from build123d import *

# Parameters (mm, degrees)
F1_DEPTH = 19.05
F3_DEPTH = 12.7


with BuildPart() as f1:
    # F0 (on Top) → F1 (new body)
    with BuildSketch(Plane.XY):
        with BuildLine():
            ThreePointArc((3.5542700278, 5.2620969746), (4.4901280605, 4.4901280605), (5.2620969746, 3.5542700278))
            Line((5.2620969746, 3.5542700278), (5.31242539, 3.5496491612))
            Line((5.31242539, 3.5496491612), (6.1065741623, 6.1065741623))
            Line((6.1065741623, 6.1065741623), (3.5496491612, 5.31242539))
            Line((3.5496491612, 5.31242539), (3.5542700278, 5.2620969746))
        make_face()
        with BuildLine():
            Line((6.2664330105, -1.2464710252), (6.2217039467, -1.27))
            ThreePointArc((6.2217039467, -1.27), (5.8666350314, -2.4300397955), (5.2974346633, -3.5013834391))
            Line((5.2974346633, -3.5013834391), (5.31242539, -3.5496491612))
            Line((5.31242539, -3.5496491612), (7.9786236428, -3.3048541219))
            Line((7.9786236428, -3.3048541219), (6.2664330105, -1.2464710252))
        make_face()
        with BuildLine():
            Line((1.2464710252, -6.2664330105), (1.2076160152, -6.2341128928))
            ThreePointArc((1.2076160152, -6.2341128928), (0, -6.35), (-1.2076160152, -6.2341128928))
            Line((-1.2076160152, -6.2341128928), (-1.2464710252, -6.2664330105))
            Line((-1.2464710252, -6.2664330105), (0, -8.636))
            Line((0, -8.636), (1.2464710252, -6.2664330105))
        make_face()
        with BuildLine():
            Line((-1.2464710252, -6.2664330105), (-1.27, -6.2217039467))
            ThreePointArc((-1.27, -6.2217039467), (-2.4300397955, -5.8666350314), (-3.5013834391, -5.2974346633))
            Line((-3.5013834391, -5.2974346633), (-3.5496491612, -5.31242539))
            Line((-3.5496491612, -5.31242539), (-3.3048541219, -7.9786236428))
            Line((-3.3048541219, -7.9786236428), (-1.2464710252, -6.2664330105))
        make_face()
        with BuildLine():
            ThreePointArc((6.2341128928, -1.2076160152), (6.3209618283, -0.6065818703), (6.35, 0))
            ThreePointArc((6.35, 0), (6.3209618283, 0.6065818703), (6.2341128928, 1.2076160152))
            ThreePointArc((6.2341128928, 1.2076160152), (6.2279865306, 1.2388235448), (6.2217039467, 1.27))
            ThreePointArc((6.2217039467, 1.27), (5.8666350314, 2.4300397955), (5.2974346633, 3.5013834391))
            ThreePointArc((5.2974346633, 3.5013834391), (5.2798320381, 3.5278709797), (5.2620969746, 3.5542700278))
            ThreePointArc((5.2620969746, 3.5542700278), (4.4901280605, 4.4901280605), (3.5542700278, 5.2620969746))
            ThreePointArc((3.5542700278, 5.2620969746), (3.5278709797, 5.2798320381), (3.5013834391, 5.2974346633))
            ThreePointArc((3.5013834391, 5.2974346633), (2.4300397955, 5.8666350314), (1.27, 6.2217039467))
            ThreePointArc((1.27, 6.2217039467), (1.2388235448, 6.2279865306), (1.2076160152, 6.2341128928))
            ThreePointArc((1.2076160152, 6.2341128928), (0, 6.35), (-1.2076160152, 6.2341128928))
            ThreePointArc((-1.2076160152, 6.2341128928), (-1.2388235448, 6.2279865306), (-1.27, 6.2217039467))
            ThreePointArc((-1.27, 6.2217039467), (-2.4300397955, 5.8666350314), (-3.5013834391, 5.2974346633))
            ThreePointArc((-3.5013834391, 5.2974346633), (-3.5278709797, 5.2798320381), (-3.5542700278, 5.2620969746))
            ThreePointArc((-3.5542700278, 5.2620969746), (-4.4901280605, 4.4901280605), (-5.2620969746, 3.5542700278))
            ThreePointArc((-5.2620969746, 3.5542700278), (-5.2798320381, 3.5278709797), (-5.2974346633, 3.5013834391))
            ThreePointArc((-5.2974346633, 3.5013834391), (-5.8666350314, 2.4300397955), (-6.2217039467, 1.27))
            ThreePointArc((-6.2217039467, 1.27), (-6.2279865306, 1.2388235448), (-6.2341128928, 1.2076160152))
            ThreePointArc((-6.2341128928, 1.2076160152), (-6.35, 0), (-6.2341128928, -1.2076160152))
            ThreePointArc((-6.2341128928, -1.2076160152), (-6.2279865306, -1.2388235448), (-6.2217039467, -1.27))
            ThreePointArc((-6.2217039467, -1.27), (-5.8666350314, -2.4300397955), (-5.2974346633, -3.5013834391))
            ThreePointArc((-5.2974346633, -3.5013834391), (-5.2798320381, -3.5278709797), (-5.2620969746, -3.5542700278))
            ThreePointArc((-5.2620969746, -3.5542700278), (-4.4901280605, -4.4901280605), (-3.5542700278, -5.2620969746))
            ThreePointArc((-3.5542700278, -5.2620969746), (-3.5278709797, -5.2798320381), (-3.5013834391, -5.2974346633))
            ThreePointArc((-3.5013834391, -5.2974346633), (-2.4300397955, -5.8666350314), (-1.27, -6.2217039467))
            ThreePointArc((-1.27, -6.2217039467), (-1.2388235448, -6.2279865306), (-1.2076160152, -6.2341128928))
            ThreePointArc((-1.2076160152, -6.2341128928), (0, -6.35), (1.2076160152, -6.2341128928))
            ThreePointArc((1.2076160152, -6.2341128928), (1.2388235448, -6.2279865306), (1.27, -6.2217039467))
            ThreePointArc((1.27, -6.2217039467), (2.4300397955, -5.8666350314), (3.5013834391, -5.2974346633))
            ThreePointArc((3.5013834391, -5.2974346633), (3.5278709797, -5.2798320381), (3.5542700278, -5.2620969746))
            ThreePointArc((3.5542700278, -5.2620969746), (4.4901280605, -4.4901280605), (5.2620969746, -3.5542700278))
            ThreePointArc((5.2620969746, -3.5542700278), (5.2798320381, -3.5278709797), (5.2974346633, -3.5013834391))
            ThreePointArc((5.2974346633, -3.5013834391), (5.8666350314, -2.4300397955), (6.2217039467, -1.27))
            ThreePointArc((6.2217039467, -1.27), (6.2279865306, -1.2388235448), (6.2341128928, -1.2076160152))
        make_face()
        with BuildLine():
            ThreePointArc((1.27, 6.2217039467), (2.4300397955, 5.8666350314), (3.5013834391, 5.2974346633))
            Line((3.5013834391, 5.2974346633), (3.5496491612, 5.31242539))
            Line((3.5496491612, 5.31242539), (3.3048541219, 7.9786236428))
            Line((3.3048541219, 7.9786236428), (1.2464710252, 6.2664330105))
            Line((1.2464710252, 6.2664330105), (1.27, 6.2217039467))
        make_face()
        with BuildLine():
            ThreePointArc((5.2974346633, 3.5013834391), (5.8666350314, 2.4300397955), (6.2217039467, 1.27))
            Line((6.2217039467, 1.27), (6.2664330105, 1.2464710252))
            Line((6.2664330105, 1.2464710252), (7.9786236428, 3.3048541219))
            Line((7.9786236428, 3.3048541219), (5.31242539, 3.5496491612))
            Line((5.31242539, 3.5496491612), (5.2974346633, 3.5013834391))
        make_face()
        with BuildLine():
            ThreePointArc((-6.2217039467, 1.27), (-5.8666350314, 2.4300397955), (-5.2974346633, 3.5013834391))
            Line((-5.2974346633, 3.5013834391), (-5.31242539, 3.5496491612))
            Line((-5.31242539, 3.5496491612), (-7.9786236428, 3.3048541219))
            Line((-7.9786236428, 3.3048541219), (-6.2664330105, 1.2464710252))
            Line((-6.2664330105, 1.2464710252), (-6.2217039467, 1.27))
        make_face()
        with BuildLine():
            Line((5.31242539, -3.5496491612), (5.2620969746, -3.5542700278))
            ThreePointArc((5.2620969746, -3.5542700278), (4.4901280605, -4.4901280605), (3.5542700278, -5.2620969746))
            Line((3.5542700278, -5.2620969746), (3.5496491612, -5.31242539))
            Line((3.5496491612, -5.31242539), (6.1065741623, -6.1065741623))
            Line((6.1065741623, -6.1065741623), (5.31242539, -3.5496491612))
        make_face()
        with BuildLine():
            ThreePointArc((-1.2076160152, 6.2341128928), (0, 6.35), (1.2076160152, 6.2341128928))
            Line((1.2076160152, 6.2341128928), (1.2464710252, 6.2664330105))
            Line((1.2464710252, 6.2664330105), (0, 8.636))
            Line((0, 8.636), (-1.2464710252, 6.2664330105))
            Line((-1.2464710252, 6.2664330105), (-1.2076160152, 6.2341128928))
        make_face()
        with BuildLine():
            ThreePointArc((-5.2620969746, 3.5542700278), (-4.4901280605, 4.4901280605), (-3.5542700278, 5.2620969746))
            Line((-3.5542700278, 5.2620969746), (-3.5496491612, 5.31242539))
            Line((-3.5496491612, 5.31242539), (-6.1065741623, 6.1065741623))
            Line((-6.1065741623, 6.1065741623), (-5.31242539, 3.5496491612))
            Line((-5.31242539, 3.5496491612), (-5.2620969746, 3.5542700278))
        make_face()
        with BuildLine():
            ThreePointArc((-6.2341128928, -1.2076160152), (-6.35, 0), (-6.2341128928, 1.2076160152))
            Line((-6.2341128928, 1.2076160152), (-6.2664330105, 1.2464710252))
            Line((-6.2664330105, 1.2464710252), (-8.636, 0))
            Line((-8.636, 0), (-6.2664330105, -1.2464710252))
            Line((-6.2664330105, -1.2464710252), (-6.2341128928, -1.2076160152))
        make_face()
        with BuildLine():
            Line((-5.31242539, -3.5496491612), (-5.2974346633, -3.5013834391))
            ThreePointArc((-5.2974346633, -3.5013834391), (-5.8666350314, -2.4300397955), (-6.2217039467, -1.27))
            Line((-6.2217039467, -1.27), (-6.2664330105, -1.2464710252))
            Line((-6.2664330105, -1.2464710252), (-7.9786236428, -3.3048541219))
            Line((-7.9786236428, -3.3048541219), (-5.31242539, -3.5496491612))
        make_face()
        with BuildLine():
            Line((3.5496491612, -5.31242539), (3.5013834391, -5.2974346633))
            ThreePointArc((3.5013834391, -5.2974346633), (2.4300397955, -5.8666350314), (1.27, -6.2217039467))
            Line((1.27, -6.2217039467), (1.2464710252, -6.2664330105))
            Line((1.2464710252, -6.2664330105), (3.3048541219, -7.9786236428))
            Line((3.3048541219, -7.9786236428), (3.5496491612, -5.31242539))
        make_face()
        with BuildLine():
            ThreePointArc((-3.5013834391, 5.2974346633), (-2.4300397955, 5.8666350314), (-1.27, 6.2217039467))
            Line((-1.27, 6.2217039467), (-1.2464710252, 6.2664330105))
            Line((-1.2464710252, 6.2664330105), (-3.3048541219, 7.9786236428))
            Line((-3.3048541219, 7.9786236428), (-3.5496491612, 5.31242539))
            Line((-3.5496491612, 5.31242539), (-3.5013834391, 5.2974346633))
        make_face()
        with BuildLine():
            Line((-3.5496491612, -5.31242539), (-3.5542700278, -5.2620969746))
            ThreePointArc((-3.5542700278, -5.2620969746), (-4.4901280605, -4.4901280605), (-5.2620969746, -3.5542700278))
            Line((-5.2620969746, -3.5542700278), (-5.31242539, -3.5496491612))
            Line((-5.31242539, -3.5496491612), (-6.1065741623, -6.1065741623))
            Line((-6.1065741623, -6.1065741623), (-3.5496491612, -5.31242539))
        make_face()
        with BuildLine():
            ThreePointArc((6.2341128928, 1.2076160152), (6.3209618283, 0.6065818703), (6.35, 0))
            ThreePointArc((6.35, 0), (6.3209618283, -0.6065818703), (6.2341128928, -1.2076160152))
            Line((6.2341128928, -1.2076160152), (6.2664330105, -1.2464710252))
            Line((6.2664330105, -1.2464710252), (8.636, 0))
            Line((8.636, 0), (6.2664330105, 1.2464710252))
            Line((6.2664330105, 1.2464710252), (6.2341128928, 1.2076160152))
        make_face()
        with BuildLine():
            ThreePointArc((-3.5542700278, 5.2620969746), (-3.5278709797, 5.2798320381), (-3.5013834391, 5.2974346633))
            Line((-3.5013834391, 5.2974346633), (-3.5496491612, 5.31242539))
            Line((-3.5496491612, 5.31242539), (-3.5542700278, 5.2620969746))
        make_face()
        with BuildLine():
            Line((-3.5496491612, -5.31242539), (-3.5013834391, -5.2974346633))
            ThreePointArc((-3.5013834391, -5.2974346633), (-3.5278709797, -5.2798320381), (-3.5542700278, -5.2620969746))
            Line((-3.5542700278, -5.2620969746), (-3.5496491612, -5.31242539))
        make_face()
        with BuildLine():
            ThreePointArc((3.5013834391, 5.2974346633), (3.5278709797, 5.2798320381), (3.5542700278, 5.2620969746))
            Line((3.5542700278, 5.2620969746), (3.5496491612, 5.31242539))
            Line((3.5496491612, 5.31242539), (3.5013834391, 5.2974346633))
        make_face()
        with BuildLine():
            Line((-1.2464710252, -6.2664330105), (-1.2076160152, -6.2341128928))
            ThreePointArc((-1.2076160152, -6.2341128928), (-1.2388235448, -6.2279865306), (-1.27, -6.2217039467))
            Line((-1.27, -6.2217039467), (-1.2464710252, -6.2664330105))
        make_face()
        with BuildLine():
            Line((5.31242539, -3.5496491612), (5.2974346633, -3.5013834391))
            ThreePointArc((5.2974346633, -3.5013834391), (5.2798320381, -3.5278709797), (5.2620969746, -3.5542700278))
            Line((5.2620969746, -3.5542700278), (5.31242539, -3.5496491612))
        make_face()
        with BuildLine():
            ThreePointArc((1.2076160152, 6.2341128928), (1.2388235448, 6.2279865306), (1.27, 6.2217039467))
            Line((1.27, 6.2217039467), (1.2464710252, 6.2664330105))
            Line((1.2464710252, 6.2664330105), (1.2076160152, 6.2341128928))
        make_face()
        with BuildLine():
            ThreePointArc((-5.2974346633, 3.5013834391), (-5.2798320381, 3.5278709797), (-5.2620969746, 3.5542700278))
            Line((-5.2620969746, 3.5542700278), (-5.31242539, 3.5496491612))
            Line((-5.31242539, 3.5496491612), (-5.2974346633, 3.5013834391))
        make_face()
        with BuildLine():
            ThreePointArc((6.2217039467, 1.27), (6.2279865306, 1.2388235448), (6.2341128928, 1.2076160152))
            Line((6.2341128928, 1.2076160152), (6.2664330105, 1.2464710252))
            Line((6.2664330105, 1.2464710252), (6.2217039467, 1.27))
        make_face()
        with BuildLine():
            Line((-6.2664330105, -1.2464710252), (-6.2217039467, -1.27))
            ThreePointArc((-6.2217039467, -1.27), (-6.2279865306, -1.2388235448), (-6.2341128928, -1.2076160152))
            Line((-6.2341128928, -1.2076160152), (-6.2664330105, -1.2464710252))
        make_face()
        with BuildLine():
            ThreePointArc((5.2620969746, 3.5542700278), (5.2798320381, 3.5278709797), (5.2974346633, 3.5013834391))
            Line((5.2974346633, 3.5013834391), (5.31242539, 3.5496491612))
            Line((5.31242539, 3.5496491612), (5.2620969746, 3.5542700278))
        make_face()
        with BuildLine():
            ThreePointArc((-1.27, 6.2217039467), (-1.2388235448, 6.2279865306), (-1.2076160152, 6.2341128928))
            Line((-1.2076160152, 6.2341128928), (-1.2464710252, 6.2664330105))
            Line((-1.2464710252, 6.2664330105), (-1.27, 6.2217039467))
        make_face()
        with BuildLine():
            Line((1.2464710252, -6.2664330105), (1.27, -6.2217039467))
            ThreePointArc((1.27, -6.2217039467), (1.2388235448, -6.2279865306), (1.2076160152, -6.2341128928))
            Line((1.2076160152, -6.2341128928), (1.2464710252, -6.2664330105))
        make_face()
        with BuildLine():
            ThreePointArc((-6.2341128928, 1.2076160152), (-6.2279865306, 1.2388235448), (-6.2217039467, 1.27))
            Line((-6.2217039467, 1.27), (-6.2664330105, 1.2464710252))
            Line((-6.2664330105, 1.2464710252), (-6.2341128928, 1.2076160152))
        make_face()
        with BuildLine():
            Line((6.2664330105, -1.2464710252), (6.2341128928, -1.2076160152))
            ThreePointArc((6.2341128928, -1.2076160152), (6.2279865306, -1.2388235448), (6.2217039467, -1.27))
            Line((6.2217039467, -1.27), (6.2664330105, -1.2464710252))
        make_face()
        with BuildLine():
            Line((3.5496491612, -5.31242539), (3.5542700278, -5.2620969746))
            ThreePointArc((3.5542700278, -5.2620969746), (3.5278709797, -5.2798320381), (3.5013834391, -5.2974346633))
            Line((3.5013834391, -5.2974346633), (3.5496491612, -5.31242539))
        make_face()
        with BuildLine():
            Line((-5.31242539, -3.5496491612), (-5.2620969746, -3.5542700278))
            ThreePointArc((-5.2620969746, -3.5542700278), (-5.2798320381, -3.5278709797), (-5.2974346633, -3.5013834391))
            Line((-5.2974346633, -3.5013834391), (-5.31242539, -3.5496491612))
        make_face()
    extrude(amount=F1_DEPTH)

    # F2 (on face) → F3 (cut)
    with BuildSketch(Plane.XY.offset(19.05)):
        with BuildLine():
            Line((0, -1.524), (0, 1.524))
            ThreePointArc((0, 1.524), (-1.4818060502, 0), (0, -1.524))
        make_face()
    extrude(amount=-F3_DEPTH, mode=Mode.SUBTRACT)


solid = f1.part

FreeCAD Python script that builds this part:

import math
import FreeCAD as App
import Part
import Sketcher

V = App.Vector
Q = App.Units.Quantity

doc = App.newDocument("Part")
body = doc.addObject("PartDesign::Body", "Body")

sketch1 = doc.addObject("Sketcher::SketchObject", "Sketch")
body.addObject(sketch1)
sketch1.AttachmentSupport = (doc.XY_Plane, [""])
sketch1.MapMode = "FlatFace"
sketch1.addGeometry([
    Part.LineSegment(V(-8, -3.3, 0), V(-5.3, -3.5, 0)),
    Part.LineSegment(V(-5.3, -3.5, 0), V(-6.1, -6.1, 0)),
    Part.LineSegment(V(-6.1, -6.1, 0), V(-3.5, -5.3, 0)),
    Part.LineSegment(V(-3.5, -5.3, 0), V(-3.3, -8, 0)),
    Part.LineSegment(V(-3.3, -8, 0), V(-1.2, -6.3, 0)),
    Part.LineSegment(V(-1.2, -6.3, 0), V(0, -8.6, 0)),
    Part.LineSegment(V(0, -8.6, 0), V(1.2, -6.3, 0)),
    Part.LineSegment(V(1.2, -6.3, 0), V(3.3, -8, 0)),
    Part.LineSegment(V(3.3, -8, 0), V(3.5, -5.3, 0)),
    Part.LineSegment(V(3.5, -5.3, 0), V(6.1, -6.1, 0)),
    Part.LineSegment(V(6.1, -6.1, 0), V(5.3, -3.5, 0)),
    Part.LineSegment(V(5.3, -3.5, 0), V(8, -3.3, 0)),
    Part.LineSegment(V(8, -3.3, 0), V(6.3, -1.2, 0)),
    Part.LineSegment(V(6.3, -1.2, 0), V(8.6, 0, 0)),
    Part.LineSegment(V(8.6, 0, 0), V(6.3, 1.2, 0)),
    Part.LineSegment(V(6.3, 1.2, 0), V(8, 3.3, 0)),
    Part.LineSegment(V(8, 3.3, 0), V(5.3, 3.5, 0)),
    Part.LineSegment(V(5.3, 3.5, 0), V(6.1, 6.1, 0)),
    Part.LineSegment(V(6.1, 6.1, 0), V(3.5, 5.3, 0)),
    Part.LineSegment(V(3.5, 5.3, 0), V(3.3, 8, 0)),
    Part.LineSegment(V(3.3, 8, 0), V(1.2, 6.3, 0)),
    Part.LineSegment(V(1.2, 6.3, 0), V(0, 8.6, 0)),
    Part.LineSegment(V(0, 8.6, 0), V(-1.2, 6.3, 0)),
    Part.LineSegment(V(-1.2, 6.3, 0), V(-3.3, 8, 0)),
    Part.LineSegment(V(-3.3, 8, 0), V(-3.5, 5.3, 0)),
    Part.LineSegment(V(-3.5, 5.3, 0), V(-6.1, 6.1, 0)),
    Part.LineSegment(V(-6.1, 6.1, 0), V(-5.3, 3.5, 0)),
    Part.LineSegment(V(-5.3, 3.5, 0), V(-8, 3.3, 0)),
    Part.LineSegment(V(-8, 3.3, 0), V(-6.3, 1.2, 0)),
    Part.LineSegment(V(-6.3, 1.2, 0), V(-8.6, 0, 0)),
    Part.LineSegment(V(-8.6, 0, 0), V(-6.3, -1.2, 0)),
    Part.LineSegment(V(-6.3, -1.2, 0), V(-8, -3.3, 0)),
], False)
sketch1.addConstraint([
    Sketcher.Constraint("Coincident", 0, 2, 1, 1),
    Sketcher.Constraint("Coincident", 1, 2, 2, 1),
    Sketcher.Constraint("Coincident", 2, 2, 3, 1),
    Sketcher.Constraint("Coincident", 3, 2, 4, 1),
    Sketcher.Constraint("Coincident", 4, 2, 5, 1),
    Sketcher.Constraint("Coincident", 5, 2, 6, 1),
    Sketcher.Constraint("Coincident", 6, 2, 7, 1),
    Sketcher.Constraint("Coincident", 7, 2, 8, 1),
    Sketcher.Constraint("Coincident", 8, 2, 9, 1),
    Sketcher.Constraint("Coincident", 9, 2, 10, 1),
    Sketcher.Constraint("Coincident", 10, 2, 11, 1),
    Sketcher.Constraint("Coincident", 11, 2, 12, 1),
    Sketcher.Constraint("Coincident", 12, 2, 13, 1),
    Sketcher.Constraint("Coincident", 13, 2, 14, 1),
    Sketcher.Constraint("Coincident", 14, 2, 15, 1),
    Sketcher.Constraint("Coincident", 15, 2, 16, 1),
    Sketcher.Constraint("Coincident", 16, 2, 17, 1),
    Sketcher.Constraint("Coincident", 17, 2, 18, 1),
    Sketcher.Constraint("Coincident", 18, 2, 19, 1),
    Sketcher.Constraint("Coincident", 19, 2, 20, 1),
    Sketcher.Constraint("Coincident", 20, 2, 21, 1),
    Sketcher.Constraint("Coincident", 21, 2, 22, 1),
    Sketcher.Constraint("Coincident", 22, 2, 23, 1),
    Sketcher.Constraint("Coincident", 23, 2, 24, 1),
    Sketcher.Constraint("Coincident", 24, 2, 25, 1),
    Sketcher.Constraint("Coincident", 25, 2, 26, 1),
    Sketcher.Constraint("Coincident", 26, 2, 27, 1),
    Sketcher.Constraint("Coincident", 27, 2, 28, 1),
    Sketcher.Constraint("Coincident", 28, 2, 29, 1),
    Sketcher.Constraint("Coincident", 29, 2, 30, 1),
    Sketcher.Constraint("Coincident", 30, 2, 31, 1),
    Sketcher.Constraint("Coincident", 31, 2, 0, 1),
    Sketcher.Constraint("Symmetric", 0, 2, 16, 2, -1, 1),
    Sketcher.Constraint("Symmetric", 1, 2, 17, 2, -1, 1),
    Sketcher.Constraint("Symmetric", 2, 2, 18, 2, -1, 1),
    Sketcher.Constraint("Symmetric", 3, 2, 19, 2, -1, 1),
    Sketcher.Constraint("Symmetric", 4, 2, 20, 2, -1, 1),
    Sketcher.Constraint("Symmetric", 5, 2, 21, 2, -1, 1),
    Sketcher.Constraint("Symmetric", 6, 2, 22, 2, -1, 1),
    Sketcher.Constraint("Symmetric", 7, 2, 23, 2, -1, 1),
    Sketcher.Constraint("Symmetric", 8, 2, 24, 2, -1, 1),
    Sketcher.Constraint("Symmetric", 9, 2, 25, 2, -1, 1),
    Sketcher.Constraint("Symmetric", 10, 2, 26, 2, -1, 1),
    Sketcher.Constraint("Symmetric", 11, 2, 27, 2, -1, 1),
    Sketcher.Constraint("Symmetric", 12, 2, 28, 2, -1, 1),
    Sketcher.Constraint("Symmetric", 13, 2, 29, 2, -1, 1),
    Sketcher.Constraint("Symmetric", 14, 2, 30, 2, -1, 1),
    Sketcher.Constraint("Symmetric", 15, 2, 31, 2, -1, 1),
    Sketcher.Constraint("Symmetric", 4, 2, 6, 2, -2),
    Sketcher.Constraint("Symmetric", 3, 2, 7, 2, -2),
    Sketcher.Constraint("Symmetric", 2, 2, 8, 2, -2),
    Sketcher.Constraint("Symmetric", 1, 2, 9, 2, -2),
    Sketcher.Constraint("Symmetric", 0, 2, 10, 2, -2),
    Sketcher.Constraint("Symmetric", 15, 2, 27, 2, -2),
    Sketcher.Constraint("Symmetric", 14, 2, 28, 2, -2),
    Sketcher.Constraint("PointOnObject", 5, 2, -2),
    Sketcher.Constraint("PointOnObject", 13, 2, -1),
    Sketcher.Constraint("Perpendicular", 0, 8),
    Sketcher.Constraint("Perpendicular", 1, 9),
    Sketcher.Constraint("Perpendicular", 4, 12),
    Sketcher.Constraint("Perpendicular", 5, 13),
    Sketcher.Constraint("Equal", 0, 1),
    Sketcher.Constraint("Equal", 1, 2),
    Sketcher.Constraint("Equal", 2, 3),
    Sketcher.Constraint("Equal", 3, 4),
    Sketcher.Constraint("Equal", 4, 5),
    Sketcher.Constraint("Equal", 11, 12),
    Sketcher.Constraint("Equal", 12, 13),
    Sketcher.Constraint("DistanceY", 5, 2, -1, 1, Q("0.34 in")),
    Sketcher.Constraint("DistanceX", 2, 2, 8, 2, Q("0.2794999 in")),
    Sketcher.Constraint("DistanceY", 3, 2, 2, 2, Q("2.666198 mm")),
    Sketcher.Constraint("DistanceX", 4, 2, -1, 1, Q("1.246471 mm")),
    Sketcher.Constraint("DistanceX", 1, 2, 0, 2, Q("0.794149 mm")),
])
pad1 = doc.addObject("PartDesign::Pad", "Pad")
body.addObject(pad1)
pad1.Profile = sketch1
pad1.Length = Q("0.75 in")

sketch2 = doc.addObject("Sketcher::SketchObject", "Sketch001")
body.addObject(sketch2)
sketch2.AttachmentSupport = (doc.XY_Plane, [""])
sketch2.MapMode = "FlatFace"
sketch2.AttachmentOffset = App.Placement(V(0, 0, 0.75 * 25.4), App.Rotation())
sketch2.addGeometry([
    Part.LineSegment(V(0, -1.5, 0), V(0, 1.5, 0)),
    Part.ArcOfCircle(Part.Circle(V(0, 0, 0), V(0, 0, 1), 1.5), math.radians(92), math.radians(268)),
], False)
sketch2.addConstraint([
    Sketcher.Constraint("Coincident", 0, 1, 1, 2),
    Sketcher.Constraint("Coincident", 1, 1, 0, 2),
    Sketcher.Constraint("Vertical", 0),
    Sketcher.Constraint("Symmetric", 0, 1, 1, 1, -1, 1),
    Sketcher.Constraint("DistanceY", 0, 1, 0, 2, Q("0.12 in")),
    Sketcher.Constraint("Radius", 1, Q("1.524601 mm")),
])
pocket1 = doc.addObject("PartDesign::Pocket", "Pocket")
body.addObject(pocket1)
pocket1.Profile = sketch2
pocket1.Length = Q("0.5 in")

doc.recompute()
